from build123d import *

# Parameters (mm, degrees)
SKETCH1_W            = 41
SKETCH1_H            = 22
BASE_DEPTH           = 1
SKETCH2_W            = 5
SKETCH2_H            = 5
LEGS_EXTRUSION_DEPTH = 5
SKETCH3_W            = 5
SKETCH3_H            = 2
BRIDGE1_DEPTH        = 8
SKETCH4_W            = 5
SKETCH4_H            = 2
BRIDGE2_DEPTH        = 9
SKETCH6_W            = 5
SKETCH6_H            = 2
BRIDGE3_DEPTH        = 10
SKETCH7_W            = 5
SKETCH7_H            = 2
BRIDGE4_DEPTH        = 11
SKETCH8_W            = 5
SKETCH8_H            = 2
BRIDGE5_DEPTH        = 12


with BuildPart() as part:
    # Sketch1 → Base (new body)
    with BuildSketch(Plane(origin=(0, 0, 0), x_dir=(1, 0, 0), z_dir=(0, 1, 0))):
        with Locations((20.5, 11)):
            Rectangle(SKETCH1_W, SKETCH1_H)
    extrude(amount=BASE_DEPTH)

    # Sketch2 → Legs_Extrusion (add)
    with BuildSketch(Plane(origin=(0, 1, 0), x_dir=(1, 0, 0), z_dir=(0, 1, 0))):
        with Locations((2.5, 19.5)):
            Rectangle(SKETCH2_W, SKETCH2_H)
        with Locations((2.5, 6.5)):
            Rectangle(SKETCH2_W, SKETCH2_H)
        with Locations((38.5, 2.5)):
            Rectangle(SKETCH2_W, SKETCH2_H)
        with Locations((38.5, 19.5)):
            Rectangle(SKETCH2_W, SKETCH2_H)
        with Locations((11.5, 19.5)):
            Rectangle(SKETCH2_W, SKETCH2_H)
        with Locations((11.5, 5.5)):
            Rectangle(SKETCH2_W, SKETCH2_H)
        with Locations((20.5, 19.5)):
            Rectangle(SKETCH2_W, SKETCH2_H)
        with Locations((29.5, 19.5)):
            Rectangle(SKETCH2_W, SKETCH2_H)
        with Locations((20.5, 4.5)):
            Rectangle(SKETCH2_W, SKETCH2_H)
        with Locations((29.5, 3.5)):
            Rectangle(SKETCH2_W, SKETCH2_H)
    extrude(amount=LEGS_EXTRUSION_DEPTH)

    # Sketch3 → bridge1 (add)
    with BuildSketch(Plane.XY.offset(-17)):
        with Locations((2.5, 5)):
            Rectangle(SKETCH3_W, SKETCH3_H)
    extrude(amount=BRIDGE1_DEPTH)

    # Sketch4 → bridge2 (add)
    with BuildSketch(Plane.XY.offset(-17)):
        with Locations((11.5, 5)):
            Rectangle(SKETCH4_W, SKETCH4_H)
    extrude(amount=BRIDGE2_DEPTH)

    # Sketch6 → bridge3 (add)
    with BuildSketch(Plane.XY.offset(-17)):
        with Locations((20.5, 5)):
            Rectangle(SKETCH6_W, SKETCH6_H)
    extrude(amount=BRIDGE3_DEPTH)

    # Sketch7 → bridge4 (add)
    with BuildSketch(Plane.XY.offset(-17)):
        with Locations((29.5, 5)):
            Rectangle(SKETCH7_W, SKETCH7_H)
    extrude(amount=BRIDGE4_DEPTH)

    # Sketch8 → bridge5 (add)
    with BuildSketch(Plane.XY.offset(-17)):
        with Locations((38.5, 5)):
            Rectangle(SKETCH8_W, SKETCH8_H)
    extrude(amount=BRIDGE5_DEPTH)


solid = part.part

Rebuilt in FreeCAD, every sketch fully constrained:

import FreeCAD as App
import Part
import Sketcher
Q = App.Units.Quantity

doc = App.newDocument("Part")
body = doc.addObject("PartDesign::Body", "Body")

sketch1 = doc.addObject("Sketcher::SketchObject", "Sketch")
body.addObject(sketch1)
sketch1.AttachmentSupport = (doc.XZ_Plane, [""])
sketch1.MapMode = "FlatFace"
sketch1.addGeometry(Part.LineSegment(App.Vector(0, -22, 0), App.Vector(0, 0, 0)), False)
sketch1.addGeometry(Part.LineSegment(App.Vector(0, 0, 0), App.Vector(41, 0, 0)), False)
sketch1.addGeometry(Part.LineSegment(App.Vector(41, 0, 0), App.Vector(41, -22, 0)), False)
sketch1.addGeometry(Part.LineSegment(App.Vector(41, -22, 0), App.Vector(0, -22, 0)), False)
sketch1.addConstraint(Sketcher.Constraint("Coincident", 0, 2, 1, 1))
sketch1.addConstraint(Sketcher.Constraint("Coincident", 1, 2, 2, 1))
sketch1.addConstraint(Sketcher.Constraint("Coincident", 2, 2, 3, 1))
sketch1.addConstraint(Sketcher.Constraint("Coincident", 3, 2, 0, 1))
sketch1.addConstraint(Sketcher.Constraint("Vertical", 0))
sketch1.addConstraint(Sketcher.Constraint("Horizontal", 1))
sketch1.addConstraint(Sketcher.Constraint("Vertical", 2))
sketch1.addConstraint(Sketcher.Constraint("Horizontal", 3))
sketch1.addConstraint(Sketcher.Constraint("Coincident", 0, 2, -1, 1))
sketch1.addConstraint(Sketcher.Constraint("DistanceX", 1, 1, 1, 2, Q("41 mm")))
sketch1.addConstraint(Sketcher.Constraint("DistanceY", 0, 1, 0, 2, Q("22 mm")))
pad1 = doc.addObject("PartDesign::Pad", "Pad")
body.addObject(pad1)
pad1.Profile = sketch1
pad1.Length = 1
pad1.Reversed = True

sketch2 = doc.addObject("Sketcher::SketchObject", "Sketch001")
body.addObject(sketch2)
sketch2.AttachmentSupport = (doc.XZ_Plane, [""])
sketch2.MapMode = "FlatFace"
sketch2.AttachmentOffset = App.Placement(App.Vector(0, 0, -1), App.Rotation())
sketch2.addGeometry(Part.LineSegment(App.Vector(0, -22, 0), App.Vector(0, -17, 0)), False)
sketch2.addGeometry(Part.LineSegment(App.Vector(0, -17, 0), App.Vector(5, -17, 0)), False)
sketch2.addGeometry(Part.LineSegment(App.Vector(5, -17, 0), App.Vector(5, -22, 0)), False)
sketch2.addGeometry(Part.LineSegment(App.Vector(5, -22, 0), App.Vector(0, -22, 0)), False)
sketch2.addGeometry(Part.LineSegment(App.Vector(0, -9, 0), App.Vector(0, -4, 0)), False)
sketch2.addGeometry(Part.LineSegment(App.Vector(0, -4, 0), App.Vector(5, -4, 0)), False)
sketch2.addGeometry(Part.LineSegment(App.Vector(5, -4, 0), App.Vector(5, -9, 0)), False)
sketch2.addGeometry(Part.LineSegment(App.Vector(5, -9, 0), App.Vector(0, -9, 0)), False)
sketch2.addGeometry(Part.LineSegment(App.Vector(36, -5, 0), App.Vector(36, 0, 0)), False)
sketch2.addGeometry(Part.LineSegment(App.Vector(36, 0, 0), App.Vector(41, 0, 0)), False)
sketch2.addGeometry(Part.LineSegment(App.Vector(41, 0, 0), App.Vector(41, -5, 0)), False)
sketch2.addGeometry(Part.LineSegment(App.Vector(41, -5, 0), App.Vector(36, -5, 0)), False)
sketch2.addGeometry(Part.LineSegment(App.Vector(36, -22, 0), App.Vector(36, -17, 0)), False)
sketch2.addGeometry(Part.LineSegment(App.Vector(36, -17, 0), App.Vector(41, -17, 0)), False)
sketch2.addGeometry(Part.LineSegment(App.Vector(41, -17, 0), App.Vector(41, -22, 0)), False)
sketch2.addGeometry(Part.LineSegment(App.Vector(41, -22, 0), App.Vector(36, -22, 0)), False)
sketch2.addGeometry(Part.LineSegment(App.Vector(9, -22, 0), App.Vector(9, -17, 0)), False)
sketch2.addGeometry(Part.LineSegment(App.Vector(9, -17, 0), App.Vector(14, -17, 0)), False)
sketch2.addGeometry(Part.LineSegment(App.Vector(14, -17, 0), App.Vector(14, -22, 0)), False)
sketch2.addGeometry(Part.LineSegment(App.Vector(14, -22, 0), App.Vector(9, -22, 0)), False)
sketch2.addGeometry(Part.LineSegment(App.Vector(9, -8, 0), App.Vector(9, -3, 0)), False)
sketch2.addGeometry(Part.LineSegment(App.Vector(9, -3, 0), App.Vector(14, -3, 0)), False)
sketch2.addGeometry(Part.LineSegment(App.Vector(14, -3, 0), App.Vector(14, -8, 0)), False)
sketch2.addGeometry(Part.LineSegment(App.Vector(14, -8, 0), App.Vector(9, -8, 0)), False)
sketch2.addGeometry(Part.LineSegment(App.Vector(18, -22, 0), App.Vector(18, -17, 0)), False)
sketch2.addGeometry(Part.LineSegment(App.Vector(18, -17, 0), App.Vector(23, -17, 0)), False)
sketch2.addGeometry(Part.LineSegment(App.Vector(23, -17, 0), App.Vector(23, -22, 0)), False)
sketch2.addGeometry(Part.LineSegment(App.Vector(23, -22, 0), App.Vector(18, -22, 0)), False)
sketch2.addGeometry(Part.LineSegment(App.Vector(27, -22, 0), App.Vector(27, -17, 0)), False)
sketch2.addGeometry(Part.LineSegment(App.Vector(27, -17, 0), App.Vector(32, -17, 0)), False)
sketch2.addGeometry(Part.LineSegment(App.Vector(32, -17, 0), App.Vector(32, -22, 0)), False)
sketch2.addGeometry(Part.LineSegment(App.Vector(32, -22, 0), App.Vector(27, -22, 0)), False)
sketch2.addGeometry(Part.LineSegment(App.Vector(18, -7, 0), App.Vector(18, -2, 0)), False)
sketch2.addGeometry(Part.LineSegment(App.Vector(18, -2, 0), App.Vector(23, -2, 0)), False)
sketch2.addGeometry(Part.LineSegment(App.Vector(23, -2, 0), App.Vector(23, -7, 0)), False)
sketch2.addGeometry(Part.LineSegment(App.Vector(23, -7, 0), App.Vector(18, -7, 0)), False)
sketch2.addGeometry(Part.LineSegment(App.Vector(27, -6, 0), App.Vector(27, -1, 0)), False)
sketch2.addGeometry(Part.LineSegment(App.Vector(27, -1, 0), App.Vector(32, -1, 0)), False)
sketch2.addGeometry(Part.LineSegment(App.Vector(32, -1, 0), App.Vector(32, -6, 0)), False)
sketch2.addGeometry(Part.LineSegment(App.Vector(32, -6, 0), App.Vector(27, -6, 0)), False)
sketch2.addConstraint(Sketcher.Constraint("Coincident", 0, 2, 1, 1))
sketch2.addConstraint(Sketcher.Constraint("Coincident", 1, 2, 2, 1))
sketch2.addConstraint(Sketcher.Constraint("Coincident", 2, 2, 3, 1))
sketch2.addConstraint(Sketcher.Constraint("Coincident", 3, 2, 0, 1))
sketch2.addConstraint(Sketcher.Constraint("Coincident", 4, 2, 5, 1))
sketch2.addConstraint(Sketcher.Constraint("Coincident", 5, 2, 6, 1))
sketch2.addConstraint(Sketcher.Constraint("Coincident", 6, 2, 7, 1))
sketch2.addConstraint(Sketcher.Constraint("Coincident", 7, 2, 4, 1))
sketch2.addConstraint(Sketcher.Constraint("Coincident", 8, 2, 9, 1))
sketch2.addConstraint(Sketcher.Constraint("Coincident", 9, 2, 10, 1))
sketch2.addConstraint(Sketcher.Constraint("Coincident", 10, 2, 11, 1))
sketch2.addConstraint(Sketcher.Constraint("Coincident", 11, 2, 8, 1))
sketch2.addConstraint(Sketcher.Constraint("Coincident", 12, 2, 13, 1))
sketch2.addConstraint(Sketcher.Constraint("Coincident", 13, 2, 14, 1))
sketch2.addConstraint(Sketcher.Constraint("Coincident", 14, 2, 15, 1))
sketch2.addConstraint(Sketcher.Constraint("Coincident", 15, 2, 12, 1))
sketch2.addConstraint(Sketcher.Constraint("Coincident", 16, 2, 17, 1))
sketch2.addConstraint(Sketcher.Constraint("Coincident", 17, 2, 18, 1))
sketch2.addConstraint(Sketcher.Constraint("Coincident", 18, 2, 19, 1))
sketch2.addConstraint(Sketcher.Constraint("Coincident", 19, 2, 16, 1))
sketch2.addConstraint(Sketcher.Constraint("Coincident", 20, 2, 21, 1))
sketch2.addConstraint(Sketcher.Constraint("Coincident", 21, 2, 22, 1))
sketch2.addConstraint(Sketcher.Constraint("Coincident", 22, 2, 23, 1))
sketch2.addConstraint(Sketcher.Constraint("Coincident", 23, 2, 20, 1))
sketch2.addConstraint(Sketcher.Constraint("Coincident", 24, 2, 25, 1))
sketch2.addConstraint(Sketcher.Constraint("Coincident", 25, 2, 26, 1))
sketch2.addConstraint(Sketcher.Constraint("Coincident", 26, 2, 27, 1))
sketch2.addConstraint(Sketcher.Constraint("Coincident", 27, 2, 24, 1))
sketch2.addConstraint(Sketcher.Constraint("Coincident", 28, 2, 29, 1))
sketch2.addConstraint(Sketcher.Constraint("Coincident", 29, 2, 30, 1))
sketch2.addConstraint(Sketcher.Constraint("Coincident", 30, 2, 31, 1))
sketch2.addConstraint(Sketcher.Constraint("Coincident", 31, 2, 28, 1))
sketch2.addConstraint(Sketcher.Constraint("Coincident", 32, 2, 33, 1))
sketch2.addConstraint(Sketcher.Constraint("Coincident", 33, 2, 34, 1))
sketch2.addConstraint(Sketcher.Constraint("Coincident", 34, 2, 35, 1))
sketch2.addConstraint(Sketcher.Constraint("Coincident", 35, 2, 32, 1))
sketch2.addConstraint(Sketcher.Constraint("Coincident", 36, 2, 37, 1))
sketch2.addConstraint(Sketcher.Constraint("Coincident", 37, 2, 38, 1))
sketch2.addConstraint(Sketcher.Constraint("Coincident", 38, 2, 39, 1))
sketch2.addConstraint(Sketcher.Constraint("Coincident", 39, 2, 36, 1))
sketch2.addConstraint(Sketcher.Constraint("Vertical", 0))
sketch2.addConstraint(Sketcher.Constraint("Horizontal", 1))
sketch2.addConstraint(Sketcher.Constraint("Vertical", 2))
sketch2.addConstraint(Sketcher.Constraint("Horizontal", 3))
sketch2.addConstraint(Sketcher.Constraint("Vertical", 4))
sketch2.addConstraint(Sketcher.Constraint("Horizontal", 5))
sketch2.addConstraint(Sketcher.Constraint("Vertical", 6))
sketch2.addConstraint(Sketcher.Constraint("Horizontal", 7))
sketch2.addConstraint(Sketcher.Constraint("Vertical", 8))
sketch2.addConstraint(Sketcher.Constraint("Horizontal", 9))
sketch2.addConstraint(Sketcher.Constraint("Vertical", 10))
sketch2.addConstraint(Sketcher.Constraint("Horizontal", 11))
sketch2.addConstraint(Sketcher.Constraint("Vertical", 12))
sketch2.addConstraint(Sketcher.Constraint("Horizontal", 13))
sketch2.addConstraint(Sketcher.Constraint("Vertical", 14))
sketch2.addConstraint(Sketcher.Constraint("Horizontal", 15))
sketch2.addConstraint(Sketcher.Constraint("Vertical", 16))
sketch2.addConstraint(Sketcher.Constraint("Horizontal", 17))
sketch2.addConstraint(Sketcher.Constraint("Vertical", 18))
sketch2.addConstraint(Sketcher.Constraint("Horizontal", 19))
sketch2.addConstraint(Sketcher.Constraint("Vertical", 20))
sketch2.addConstraint(Sketcher.Constraint("Horizontal", 21))
sketch2.addConstraint(Sketcher.Constraint("Vertical", 22))
sketch2.addConstraint(Sketcher.Constraint("Horizontal", 23))
sketch2.addConstraint(Sketcher.Constraint("Vertical", 24))
sketch2.addConstraint(Sketcher.Constraint("Horizontal", 25))
sketch2.addConstraint(Sketcher.Constraint("Vertical", 26))
sketch2.addConstraint(Sketcher.Constraint("Horizontal", 27))
sketch2.addConstraint(Sketcher.Constraint("Vertical", 28))
sketch2.addConstraint(Sketcher.Constraint("Horizontal", 29))
sketch2.addConstraint(Sketcher.Constraint("Vertical", 30))
sketch2.addConstraint(Sketcher.Constraint("Horizontal", 31))
sketch2.addConstraint(Sketcher.Constraint("Vertical", 32))
sketch2.addConstraint(Sketcher.Constraint("Horizontal", 33))
sketch2.addConstraint(Sketcher.Constraint("Vertical", 34))
sketch2.addConstraint(Sketcher.Constraint("Horizontal", 35))
sketch2.addConstraint(Sketcher.Constraint("Vertical", 36))
sketch2.addConstraint(Sketcher.Constraint("Horizontal", 37))
sketch2.addConstraint(Sketcher.Constraint("Vertical", 38))
sketch2.addConstraint(Sketcher.Constraint("Horizontal", 39))
sketch2.addConstraint(Sketcher.Constraint("PointOnObject", 0, 2, -2))
sketch2.addConstraint(Sketcher.Constraint("PointOnObject", 4, 2, -2))
sketch2.addConstraint(Sketcher.Constraint("PointOnObject", 8, 2, -1))
sketch2.addConstraint(Sketcher.Constraint("Horizontal", 1, 2, 12, 2))
sketch2.addConstraint(Sketcher.Constraint("Horizontal", 3, 2, 14, 2))
sketch2.addConstraint(Sketcher.Constraint("Horizontal", 13, 2, 16, 2))
sketch2.addConstraint(Sketcher.Constraint("Horizontal", 15, 2, 18, 2))
sketch2.addConstraint(Sketcher.Constraint("Horizontal", 17, 2, 24, 2))
sketch2.addConstraint(Sketcher.Constraint("Horizontal", 19, 2, 26, 2))
sketch2.addConstraint(Sketcher.Constraint("Horizontal", 25, 2, 28, 2))
sketch2.addConstraint(Sketcher.Constraint("Horizontal", 27, 2, 30, 2))
sketch2.addConstraint(Sketcher.Constraint("Vertical", 2, 2, 5, 2))
sketch2.addConstraint(Sketcher.Constraint("Vertical", 11, 2, 12, 2))
sketch2.addConstraint(Sketcher.Constraint("Vertical", 10, 2, 13, 2))
sketch2.addConstraint(Sketcher.Constraint("Vertical", 19, 2, 20, 2))
sketch2.addConstraint(Sketcher.Constraint("Vertical", 18, 2, 21, 2))
sketch2.addConstraint(Sketcher.Constraint("Vertical", 27, 2, 32, 2))
sketch2.addConstraint(Sketcher.Constraint("Vertical", 26, 2, 33, 2))
sketch2.addConstraint(Sketcher.Constraint("Vertical", 31, 2, 36, 2))
sketch2.addConstraint(Sketcher.Constraint("Vertical", 30, 2, 37, 2))
sketch2.addConstraint(Sketcher.Constraint("Equal", 7, 9))
sketch2.addConstraint(Sketcher.Constraint("Equal", 15, 17))
sketch2.addConstraint(Sketcher.Constraint("Equal", 23, 25))
sketch2.addConstraint(Sketcher.Constraint("Equal", 27, 29))
sketch2.addConstraint(Sketcher.Constraint("Equal", 39, 0))
sketch2.addConstraint(Sketcher.Constraint("Equal", 2, 4))
sketch2.addConstraint(Sketcher.Constraint("Equal", 6, 8))
sketch2.addConstraint(Sketcher.Constraint("Equal", 18, 20))
sketch2.addConstraint(Sketcher.Constraint("Equal", 30, 32))
sketch2.addConstraint(Sketcher.Constraint("Equal", 34, 36))
sketch2.addConstraint(Sketcher.Constraint("DistanceX", 1, 1, 1, 2, Q("5 mm")))
sketch2.addConstraint(Sketcher.Constraint("DistanceY", 0, 2, -1, 1, Q("17 mm")))
sketch2.addConstraint(Sketcher.Constraint("DistanceY", 4, 2, -1, 1, Q("4 mm")))
sketch2.addConstraint(Sketcher.Constraint("DistanceX", -1, 1, 8, 2, Q("36 mm")))
sketch2.addConstraint(Sketcher.Constraint("DistanceX", -1, 1, 16, 2, Q("9 mm")))
sketch2.addConstraint(Sketcher.Constraint("DistanceY", 20, 2, -1, 1, Q("3 mm")))
sketch2.addConstraint(Sketcher.Constraint("DistanceX", -1, 1, 24, 2, Q("18 mm")))
sketch2.addConstraint(Sketcher.Constraint("DistanceX", -1, 1, 28, 2, Q("27 mm")))
sketch2.addConstraint(Sketcher.Constraint("DistanceY", 32, 2, -1, 1, Q("2 mm")))
sketch2.addConstraint(Sketcher.Constraint("DistanceY", 36, 2, -1, 1, Q("1 mm")))
pad2 = doc.addObject("PartDesign::Pad", "Pad001")
body.addObject(pad2)
pad2.Profile = sketch2
pad2.Length = 5
pad2.Reversed = True

sketch3 = doc.addObject("Sketcher::SketchObject", "Sketch002")
body.addObject(sketch3)
sketch3.AttachmentSupport = (doc.XY_Plane, [""])
sketch3.MapMode = "FlatFace"
sketch3.AttachmentOffset = App.Placement(App.Vector(0, 0, -17), App.Rotation())
sketch3.addGeometry(Part.LineSegment(App.Vector(0, 6, 0), App.Vector(0, 4, 0)), False)
sketch3.addGeometry(Part.LineSegment(App.Vector(0, 4, 0), App.Vector(5, 4, 0)), False)
sketch3.addGeometry(Part.LineSegment(App.Vector(5, 4, 0), App.Vector(5, 6, 0)), False)
sketch3.addGeometry(Part.LineSegment(App.Vector(5, 6, 0), App.Vector(0, 6, 0)), False)
sketch3.addConstraint(Sketcher.Constraint("Coincident", 0, 2, 1, 1))
sketch3.addConstraint(Sketcher.Constraint("Coincident", 1, 2, 2, 1))
sketch3.addConstraint(Sketcher.Constraint("Coincident", 2, 2, 3, 1))
sketch3.addConstraint(Sketcher.Constraint("Coincident", 3, 2, 0, 1))
sketch3.addConstraint(Sketcher.Constraint("Vertical", 0))
sketch3.addConstraint(Sketcher.Constraint("Horizontal", 1))
sketch3.addConstraint(Sketcher.Constraint("Vertical", 2))
sketch3.addConstraint(Sketcher.Constraint("Horizontal", 3))
sketch3.addConstraint(Sketcher.Constraint("PointOnObject", 0, 2, -2))
sketch3.addConstraint(Sketcher.Constraint("DistanceX", 1, 1, 1, 2, Q("5 mm")))
sketch3.addConstraint(Sketcher.Constraint("DistanceY", 0, 2, 0, 1, Q("2 mm")))
sketch3.addConstraint(Sketcher.Constraint("DistanceY", -1, 1, 0, 2, Q("4 mm")))
pad3 = doc.addObject("PartDesign::Pad", "Pad002")
body.addObject(pad3)
pad3.Profile = sketch3
pad3.Length = 8

sketch4 = doc.addObject("Sketcher::SketchObject", "Sketch003")
body.addObject(sketch4)
sketch4.AttachmentSupport = (doc.XY_Plane, [""])
sketch4.MapMode = "FlatFace"
sketch4.AttachmentOffset = App.Placement(App.Vector(0, 0, -17), App.Rotation())
sketch4.addGeometry(Part.LineSegment(App.Vector(9, 6, 0), App.Vector(9, 4, 0)), False)
sketch4.addGeometry(Part.LineSegment(App.Vector(9, 4, 0), App.Vector(14, 4, 0)), False)
sketch4.addGeometry(Part.LineSegment(App.Vector(14, 4, 0), App.Vector(14, 6, 0)), False)
sketch4.addGeometry(Part.LineSegment(App.Vector(14, 6, 0), App.Vector(9, 6, 0)), False)
sketch4.addConstraint(Sketcher.Constraint("Coincident", 0, 2, 1, 1))
sketch4.addConstraint(Sketcher.Constraint("Coincident", 1, 2, 2, 1))
sketch4.addConstraint(Sketcher.Constraint("Coincident", 2, 2, 3, 1))
sketch4.addConstraint(Sketcher.Constraint("Coincident", 3, 2, 0, 1))
sketch4.addConstraint(Sketcher.Constraint("Vertical", 0))
sketch4.addConstraint(Sketcher.Constraint("Horizontal", 1))
sketch4.addConstraint(Sketcher.Constraint("Vertical", 2))
sketch4.addConstraint(Sketcher.Constraint("Horizontal", 3))
sketch4.addConstraint(Sketcher.Constraint("DistanceX", 1, 1, 1, 2, Q("5 mm")))
sketch4.addConstraint(Sketcher.Constraint("DistanceY", 0, 2, 0, 1, Q("2 mm")))
sketch4.addConstraint(Sketcher.Constraint("DistanceX", -1, 1, 0, 2, Q("9 mm")))
sketch4.addConstraint(Sketcher.Constraint("DistanceY", -1, 1, 0, 2, Q("4 mm")))
pad4 = doc.addObject("PartDesign::Pad", "Pad003")
body.addObject(pad4)
pad4.Profile = sketch4
pad4.Length = 9

sketch5 = doc.addObject("Sketcher::SketchObject", "Sketch004")
body.addObject(sketch5)
sketch5.AttachmentSupport = (doc.XY_Plane, [""])
sketch5.MapMode = "FlatFace"
sketch5.AttachmentOffset = App.Placement(App.Vector(0, 0, -17), App.Rotation())
sketch5.addGeometry(Part.LineSegment(App.Vector(18, 6, 0), App.Vector(18, 4, 0)), False)
sketch5.addGeometry(Part.LineSegment(App.Vector(18, 4, 0), App.Vector(23, 4, 0)), False)
sketch5.addGeometry(Part.LineSegment(App.Vector(23, 4, 0), App.Vector(23, 6, 0)), False)
sketch5.addGeometry(Part.LineSegment(App.Vector(23, 6, 0), App.Vector(18, 6, 0)), False)
sketch5.addConstraint(Sketcher.Constraint("Coincident", 0, 2, 1, 1))
sketch5.addConstraint(Sketcher.Constraint("Coincident", 1, 2, 2, 1))
sketch5.addConstraint(Sketcher.Constraint("Coincident", 2, 2, 3, 1))
sketch5.addConstraint(Sketcher.Constraint("Coincident", 3, 2, 0, 1))
sketch5.addConstraint(Sketcher.Constraint("Vertical", 0))
sketch5.addConstraint(Sketcher.Constraint("Horizontal", 1))
sketch5.addConstraint(Sketcher.Constraint("Vertical", 2))
sketch5.addConstraint(Sketcher.Constraint("Horizontal", 3))
sketch5.addConstraint(Sketcher.Constraint("DistanceX", 1, 1, 1, 2, Q("5 mm")))
sketch5.addConstraint(Sketcher.Constraint("DistanceY", 0, 2, 0, 1, Q("2 mm")))
sketch5.addConstraint(Sketcher.Constraint("DistanceX", -1, 1, 0, 2, Q("18 mm")))
sketch5.addConstraint(Sketcher.Constraint("DistanceY", -1, 1, 0, 2, Q("4 mm")))
pad5 = doc.addObject("PartDesign::Pad", "Pad004")
body.addObject(pad5)
pad5.Profile = sketch5
pad5.Length = 10

sketch6 = doc.addObject("Sketcher::SketchObject", "Sketch005")
body.addObject(sketch6)
sketch6.AttachmentSupport = (doc.XY_Plane, [""])
sketch6.MapMode = "FlatFace"
sketch6.AttachmentOffset = App.Placement(App.Vector(0, 0, -17), App.Rotation())
sketch6.addGeometry(Part.LineSegment(App.Vector(27, 6, 0), App.Vector(27, 4, 0)), False)
sketch6.addGeometry(Part.LineSegment(App.Vector(27, 4, 0), App.Vector(32, 4, 0)), False)
sketch6.addGeometry(Part.LineSegment(App.Vector(32, 4, 0), App.Vector(32, 6, 0)), False)
sketch6.addGeometry(Part.LineSegment(App.Vector(32, 6, 0), App.Vector(27, 6, 0)), False)
sketch6.addConstraint(Sketcher.Constraint("Coincident", 0, 2, 1, 1))
sketch6.addConstraint(Sketcher.Constraint("Coincident", 1, 2, 2, 1))
sketch6.addConstraint(Sketcher.Constraint("Coincident", 2, 2, 3, 1))
sketch6.addConstraint(Sketcher.Constraint("Coincident", 3, 2, 0, 1))
sketch6.addConstraint(Sketcher.Constraint("Vertical", 0))
sketch6.addConstraint(Sketcher.Constraint("Horizontal", 1))
sketch6.addConstraint(Sketcher.Constraint("Vertical", 2))
sketch6.addConstraint(Sketcher.Constraint("Horizontal", 3))
sketch6.addConstraint(Sketcher.Constraint("DistanceX", 1, 1, 1, 2, Q("5 mm")))
sketch6.addConstraint(Sketcher.Constraint("DistanceY", 0, 2, 0, 1, Q("2 mm")))
sketch6.addConstraint(Sketcher.Constraint("DistanceX", -1, 1, 0, 2, Q("27 mm")))
sketch6.addConstraint(Sketcher.Constraint("DistanceY", -1, 1, 0, 2, Q("4 mm")))
pad6 = doc.addObject("PartDesign::Pad", "Pad005")
body.addObject(pad6)
pad6.Profile = sketch6
pad6.Length = 11

sketch7 = doc.addObject("Sketcher::SketchObject", "Sketch006")
body.addObject(sketch7)
sketch7.AttachmentSupport = (doc.XY_Plane, [""])
sketch7.MapMode = "FlatFace"
sketch7.AttachmentOffset = App.Placement(App.Vector(0, 0, -17), App.Rotation())
sketch7.addGeometry(Part.LineSegment(App.Vector(36, 6, 0), App.Vector(36, 4, 0)), False)
sketch7.addGeometry(Part.LineSegment(App.Vector(36, 4, 0), App.Vector(41, 4, 0)), False)
sketch7.addGeometry(Part.LineSegment(App.Vector(41, 4, 0), App.Vector(41, 6, 0)), False)
sketch7.addGeometry(Part.LineSegment(App.Vector(41, 6, 0), App.Vector(36, 6, 0)), False)
sketch7.addConstraint(Sketcher.Constraint("Coincident", 0, 2, 1, 1))
sketch7.addConstraint(Sketcher.Constraint("Coincident", 1, 2, 2, 1))
sketch7.addConstraint(Sketcher.Constraint("Coincident", 2, 2, 3, 1))
sketch7.addConstraint(Sketcher.Constraint("Coincident", 3, 2, 0, 1))
sketch7.addConstraint(Sketcher.Constraint("Vertical", 0))
sketch7.addConstraint(Sketcher.Constraint("Horizontal", 1))
sketch7.addConstraint(Sketcher.Constraint("Vertical", 2))
sketch7.addConstraint(Sketcher.Constraint("Horizontal", 3))
sketch7.addConstraint(Sketcher.Constraint("DistanceX", 1, 1, 1, 2, Q("5 mm")))
sketch7.addConstraint(Sketcher.Constraint("DistanceY", 0, 2, 0, 1, Q("2 mm")))
sketch7.addConstraint(Sketcher.Constraint("DistanceX", -1, 1, 0, 2, Q("36 mm")))
sketch7.addConstraint(Sketcher.Constraint("DistanceY", -1, 1, 0, 2, Q("4 mm")))
pad7 = doc.addObject("PartDesign::Pad", "Pad006")
body.addObject(pad7)
pad7.Profile = sketch7
pad7.Length = 12

doc.recompute()
